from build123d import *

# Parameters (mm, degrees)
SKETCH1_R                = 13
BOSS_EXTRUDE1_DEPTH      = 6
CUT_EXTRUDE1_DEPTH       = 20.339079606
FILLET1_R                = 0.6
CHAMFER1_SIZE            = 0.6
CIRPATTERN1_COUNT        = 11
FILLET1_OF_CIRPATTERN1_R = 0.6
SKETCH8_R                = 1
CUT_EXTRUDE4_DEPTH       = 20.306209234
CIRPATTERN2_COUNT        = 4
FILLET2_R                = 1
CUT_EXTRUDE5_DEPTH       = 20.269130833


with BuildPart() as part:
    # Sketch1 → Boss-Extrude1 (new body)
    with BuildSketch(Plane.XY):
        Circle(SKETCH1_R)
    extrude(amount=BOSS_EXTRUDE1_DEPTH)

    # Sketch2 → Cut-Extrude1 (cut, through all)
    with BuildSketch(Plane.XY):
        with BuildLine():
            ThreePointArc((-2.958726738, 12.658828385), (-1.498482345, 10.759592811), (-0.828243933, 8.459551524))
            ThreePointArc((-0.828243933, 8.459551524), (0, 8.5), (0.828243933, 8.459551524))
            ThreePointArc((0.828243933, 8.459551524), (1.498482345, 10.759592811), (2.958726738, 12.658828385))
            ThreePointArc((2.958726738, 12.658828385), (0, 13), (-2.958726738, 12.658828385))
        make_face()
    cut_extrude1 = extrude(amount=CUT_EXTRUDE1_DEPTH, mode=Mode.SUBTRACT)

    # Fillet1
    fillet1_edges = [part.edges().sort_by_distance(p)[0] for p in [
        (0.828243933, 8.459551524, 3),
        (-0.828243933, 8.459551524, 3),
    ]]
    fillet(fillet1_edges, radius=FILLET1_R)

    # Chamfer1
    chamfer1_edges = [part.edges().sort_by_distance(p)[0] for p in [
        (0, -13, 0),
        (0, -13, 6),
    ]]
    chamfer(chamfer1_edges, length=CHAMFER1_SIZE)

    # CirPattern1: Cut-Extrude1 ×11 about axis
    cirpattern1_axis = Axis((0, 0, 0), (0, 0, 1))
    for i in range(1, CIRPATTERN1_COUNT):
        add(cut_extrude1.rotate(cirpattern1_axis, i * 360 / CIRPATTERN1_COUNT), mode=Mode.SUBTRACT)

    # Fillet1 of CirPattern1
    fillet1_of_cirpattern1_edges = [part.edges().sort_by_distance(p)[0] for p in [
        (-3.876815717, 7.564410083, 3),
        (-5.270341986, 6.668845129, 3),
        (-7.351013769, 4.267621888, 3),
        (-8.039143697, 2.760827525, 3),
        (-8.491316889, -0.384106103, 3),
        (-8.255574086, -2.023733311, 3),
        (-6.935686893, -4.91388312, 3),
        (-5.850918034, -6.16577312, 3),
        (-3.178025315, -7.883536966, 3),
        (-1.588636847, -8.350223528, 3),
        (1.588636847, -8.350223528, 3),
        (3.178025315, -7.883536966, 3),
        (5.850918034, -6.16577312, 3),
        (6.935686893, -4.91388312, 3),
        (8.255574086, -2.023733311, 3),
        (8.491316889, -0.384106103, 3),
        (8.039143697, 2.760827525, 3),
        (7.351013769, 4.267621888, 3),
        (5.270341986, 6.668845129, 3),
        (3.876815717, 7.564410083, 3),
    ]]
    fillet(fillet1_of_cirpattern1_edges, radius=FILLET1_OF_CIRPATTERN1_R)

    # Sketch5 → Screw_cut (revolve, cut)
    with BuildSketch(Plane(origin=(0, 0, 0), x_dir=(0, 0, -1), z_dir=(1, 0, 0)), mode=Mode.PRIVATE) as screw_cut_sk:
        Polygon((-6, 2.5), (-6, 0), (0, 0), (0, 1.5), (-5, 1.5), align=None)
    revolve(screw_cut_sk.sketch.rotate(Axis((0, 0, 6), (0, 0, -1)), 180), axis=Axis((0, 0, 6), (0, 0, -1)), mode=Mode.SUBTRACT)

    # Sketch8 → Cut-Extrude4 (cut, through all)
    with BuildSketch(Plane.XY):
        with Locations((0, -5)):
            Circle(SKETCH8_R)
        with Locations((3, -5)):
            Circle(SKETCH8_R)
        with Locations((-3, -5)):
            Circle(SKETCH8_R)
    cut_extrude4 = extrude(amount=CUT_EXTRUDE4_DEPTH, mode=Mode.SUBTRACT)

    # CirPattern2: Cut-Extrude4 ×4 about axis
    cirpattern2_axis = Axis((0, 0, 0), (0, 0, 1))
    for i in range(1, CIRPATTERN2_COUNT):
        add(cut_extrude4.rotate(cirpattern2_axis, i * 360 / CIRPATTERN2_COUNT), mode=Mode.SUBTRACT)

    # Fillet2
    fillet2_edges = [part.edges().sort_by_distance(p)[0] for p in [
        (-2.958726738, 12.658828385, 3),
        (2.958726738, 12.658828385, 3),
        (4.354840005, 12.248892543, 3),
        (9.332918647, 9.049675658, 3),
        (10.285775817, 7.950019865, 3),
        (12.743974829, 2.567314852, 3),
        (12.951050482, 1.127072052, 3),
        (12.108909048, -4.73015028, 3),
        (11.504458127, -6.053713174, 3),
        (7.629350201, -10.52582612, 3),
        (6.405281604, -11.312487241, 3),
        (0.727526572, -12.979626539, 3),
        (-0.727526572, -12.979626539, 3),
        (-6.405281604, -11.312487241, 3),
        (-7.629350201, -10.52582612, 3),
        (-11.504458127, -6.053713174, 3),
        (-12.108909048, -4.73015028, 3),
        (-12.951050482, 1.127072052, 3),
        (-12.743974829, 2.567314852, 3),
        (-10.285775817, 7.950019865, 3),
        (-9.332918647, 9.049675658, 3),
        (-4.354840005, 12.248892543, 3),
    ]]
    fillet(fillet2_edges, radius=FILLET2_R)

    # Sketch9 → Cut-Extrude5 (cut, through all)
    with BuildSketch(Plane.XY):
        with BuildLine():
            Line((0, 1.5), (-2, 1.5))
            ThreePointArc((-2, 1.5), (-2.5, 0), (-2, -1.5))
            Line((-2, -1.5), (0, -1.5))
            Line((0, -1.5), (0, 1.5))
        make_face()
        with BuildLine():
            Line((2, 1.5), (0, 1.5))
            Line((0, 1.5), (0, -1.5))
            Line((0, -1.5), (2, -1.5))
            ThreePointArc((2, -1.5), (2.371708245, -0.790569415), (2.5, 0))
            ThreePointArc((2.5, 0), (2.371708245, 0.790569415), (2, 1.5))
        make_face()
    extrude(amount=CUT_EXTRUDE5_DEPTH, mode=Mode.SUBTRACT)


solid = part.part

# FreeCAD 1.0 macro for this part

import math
import FreeCAD as App
import Part
import Sketcher
Q = App.Units.Quantity


def edges_at(feature, points):
    """Names of the edges that pass closest to the given points."""
    edges = feature.Shape.Edges
    near = lambda p: min(range(len(edges)), key=lambda i: edges[i].distToShape(Part.Vertex(*p))[0])
    return sorted({f"Edge{near(p) + 1}" for p in points})

doc = App.newDocument("Part")
body = doc.addObject("PartDesign::Body", "Body")

sketch1 = body.newObject("Sketcher::SketchObject", "Sketch")
sketch1.AttachmentSupport = (doc.getObject("XY_Plane"), [""])
sketch1.MapMode = "FlatFace"
sketch1.addGeometry(Part.Circle(App.Vector(0, 0, 0), App.Vector(0, 0, 1), 13), False)
sketch1.addConstraint([
    Sketcher.Constraint("Coincident", 0, 3, -1, 1),
    Sketcher.Constraint("Diameter", 0, Q("26 mm")),
])
pad1 = body.newObject("PartDesign::Pad", "Pad")
pad1.Profile = sketch1
pad1.Length = 6

sketch2 = body.newObject("Sketcher::SketchObject", "Sketch001")
sketch2.AttachmentSupport = (doc.getObject("XY_Plane"), [""])
sketch2.MapMode = "FlatFace"
sketch2.addGeometry([
    Part.ArcOfCircle(Part.Circle(App.Vector(-7.3, 7.8, 0), App.Vector(0, 0, 1), 6.5), math.radians(6), math.radians(48)),
    Part.ArcOfCircle(Part.Circle(App.Vector(0, 0, 0), App.Vector(0, 0, 1), 8.5), math.radians(84.41), math.radians(95.59)),
    Part.ArcOfCircle(Part.Circle(App.Vector(7.3, 7.8, 0), App.Vector(0, 0, 1), 6.5), math.radians(132), math.radians(174)),
    Part.ArcOfCircle(Part.Circle(App.Vector(0, 0, 0), App.Vector(0, 0, 1), 13), math.radians(77), math.radians(103)),
], False)
sketch2.addConstraint([
    Sketcher.Constraint("Coincident", 0, 1, 1, 2),
    Sketcher.Constraint("Coincident", 1, 1, 2, 2),
    Sketcher.Constraint("Coincident", 2, 1, 3, 1),
    Sketcher.Constraint("Coincident", 3, 2, 0, 2),
    Sketcher.Constraint("Coincident", 1, 3, -1, 1),
    Sketcher.Constraint("Coincident", 3, 3, -1, 1),
    Sketcher.Constraint("Equal", 0, 2),
    Sketcher.Constraint("Symmetric", 0, 3, 2, 3, -2),
    Sketcher.Constraint("Radius", 3, Q("13 mm")),
    Sketcher.Constraint("Radius", 1, Q("8.5 mm")),
    Sketcher.Constraint("Radius", 0, Q("6.478885 mm")),
    Sketcher.Constraint("DistanceY", -1, 1, 0, 1, Q("8.459552 mm")),
    Sketcher.Constraint("DistanceY", -1, 1, 2, 1, Q("12.658828 mm")),
])
pocket1 = body.newObject("PartDesign::Pocket", "Pocket")
pocket1.Profile = sketch2
pocket1.Type = "ThroughAll"
pocket1.Reversed = True
doc.recompute()

fillet = body.newObject("PartDesign::Fillet", "Fillet")
fillet.Base = (pocket1, edges_at(pocket1, [(0.828, 8.46, 3), (-0.828, 8.46, 3)]))
fillet.Radius = 0.6
doc.recompute()

chamfer = body.newObject("PartDesign::Chamfer", "Chamfer")
chamfer.Base = (fillet, edges_at(fillet, [(0, -13, 0), (0, -13, 6)]))
chamfer.Size = 0.6
doc.recompute()

polarpattern = body.newObject("PartDesign::PolarPattern", "PolarPattern")
polarpattern.Originals = [pocket1]
polarpattern.Axis = (doc.getObject("Z_Axis"), [""])
polarpattern.Angle = 360
polarpattern.Occurrences = 11
body.Tip = polarpattern
doc.recompute()

fillet2 = body.newObject("PartDesign::Fillet", "Fillet001")
fillet2.Base = (polarpattern, edges_at(polarpattern, [
    (-3.877, 7.564, 3),
    (-5.27, 6.669, 3),
    (-7.351, 4.268, 3),
    (-8.039, 2.761, 3),
    (-8.491, -0.384, 3),
    (-8.256, -2.024, 3),
    (-6.936, -4.914, 3),
    (-5.851, -6.166, 3),
    (-3.178, -7.884, 3),
    (-1.589, -8.35, 3),
    (1.589, -8.35, 3),
    (3.178, -7.884, 3),
    (5.851, -6.166, 3),
    (6.936, -4.914, 3),
    (8.256, -2.024, 3),
    (8.491, -0.384, 3),
    (8.039, 2.761, 3),
    (7.351, 4.268, 3),
    (5.27, 6.669, 3),
    (3.877, 7.564, 3),
]))
fillet2.Radius = 0.6

sketch3 = body.newObject("Sketcher::SketchObject", "Sketch002")
sketch3.AttachmentSupport = (doc.getObject("YZ_Plane"), [""])
sketch3.MapMode = "FlatFace"
sketch3.addGeometry([
    Part.LineSegment(App.Vector(2.5, 6, 0), App.Vector(0, 6, 0)),
    Part.LineSegment(App.Vector(0, 6, 0), App.Vector(0, 0, 0)),
    Part.LineSegment(App.Vector(0, 0, 0), App.Vector(1.5, 0, 0)),
    Part.LineSegment(App.Vector(1.5, 0, 0), App.Vector(1.5, 5, 0)),
    Part.LineSegment(App.Vector(1.5, 5, 0), App.Vector(2.5, 6, 0)),
], False)
sketch3.addConstraint([
    Sketcher.Constraint("Coincident", 0, 2, 1, 1),
    Sketcher.Constraint("Coincident", 1, 2, 2, 1),
    Sketcher.Constraint("Coincident", 2, 2, 3, 1),
    Sketcher.Constraint("Coincident", 3, 2, 4, 1),
    Sketcher.Constraint("Coincident", 4, 2, 0, 1),
    Sketcher.Constraint("Horizontal", 0),
    Sketcher.Constraint("Vertical", 1),
    Sketcher.Constraint("Horizontal", 2),
    Sketcher.Constraint("Vertical", 3),
    Sketcher.Constraint("Coincident", 1, 2, -1, 1),
    Sketcher.Constraint("DistanceY", 1, 2, 1, 1, Q("6 mm")),
    Sketcher.Constraint("DistanceY", 3, 1, 3, 2, Q("5 mm")),
    Sketcher.Constraint("Angle", 4, Q("45 deg")),
    Sketcher.Constraint("DistanceX", 0, 2, 0, 1, Q("2.5 mm")),
])
groove = body.newObject("PartDesign::Groove", "Groove")
groove.Profile = sketch3
groove.ReferenceAxis = (sketch3, ["V_Axis"])
groove.Angle = 360

sketch4 = body.newObject("Sketcher::SketchObject", "Sketch003")
sketch4.AttachmentSupport = (doc.getObject("XY_Plane"), [""])
sketch4.MapMode = "FlatFace"
sketch4.addGeometry([
    Part.Circle(App.Vector(0, -5, 0), App.Vector(0, 0, 1), 1),
    Part.Circle(App.Vector(3, -5, 0), App.Vector(0, 0, 1), 1),
    Part.Circle(App.Vector(-3, -5, 0), App.Vector(0, 0, 1), 1),
], False)
sketch4.addConstraint([
    Sketcher.Constraint("Equal", 0, 1),
    Sketcher.Constraint("Equal", 1, 2),
    Sketcher.Constraint("Symmetric", 1, 3, 2, 3, -2),
    Sketcher.Constraint("PointOnObject", 0, 3, -2),
    Sketcher.Constraint("Horizontal", 0, 3, 1, 3),
    Sketcher.Constraint("Diameter", 0, Q("2 mm")),
    Sketcher.Constraint("DistanceY", 0, 3, -1, 1, Q("5 mm")),
    Sketcher.Constraint("DistanceX", -1, 1, 1, 3, Q("3 mm")),
])
pocket2 = body.newObject("PartDesign::Pocket", "Pocket001")
pocket2.Profile = sketch4
pocket2.Type = "ThroughAll"
pocket2.Reversed = True
doc.recompute()

polarpattern2 = body.newObject("PartDesign::PolarPattern", "PolarPattern001")
polarpattern2.Originals = [pocket2]
polarpattern2.Axis = (doc.getObject("Z_Axis"), [""])
polarpattern2.Angle = 360
polarpattern2.Occurrences = 4
body.Tip = polarpattern2
doc.recompute()

fillet3 = body.newObject("PartDesign::Fillet", "Fillet002")
fillet3.Base = (polarpattern2, edges_at(polarpattern2, [
    (-2.959, 12.659, 3),
    (2.959, 12.659, 3),
    (4.355, 12.249, 3),
    (9.333, 9.05, 3),
    (10.286, 7.95, 3),
    (12.744, 2.567, 3),
    (12.951, 1.127, 3),
    (12.109, -4.73, 3),
    (11.504, -6.054, 3),
    (7.629, -10.526, 3),
    (6.405, -11.312, 3),
    (0.728, -12.98, 3),
    (-0.728, -12.98, 3),
    (-6.405, -11.312, 3),
    (-7.629, -10.526, 3),
    (-11.504, -6.054, 3),
    (-12.109, -4.73, 3),
    (-12.951, 1.127, 3),
    (-12.744, 2.567, 3),
    (-10.286, 7.95, 3),
    (-9.333, 9.05, 3),
    (-4.355, 12.249, 3),
]))
fillet3.Radius = 1

sketch5 = body.newObject("Sketcher::SketchObject", "Sketch004")
sketch5.AttachmentSupport = (doc.getObject("XY_Plane"), [""])
sketch5.MapMode = "FlatFace"
sketch5.addGeometry([
    Part.ArcOfCircle(Part.Circle(App.Vector(0, 0, 0), App.Vector(0, 0, 1), 2.5), math.radians(143), math.radians(217)),
    Part.LineSegment(App.Vector(-2, -1.5, 0), App.Vector(2, -1.5, 0)),
    Part.ArcOfCircle(Part.Circle(App.Vector(0, 0, 0), App.Vector(0, 0, 1), 2.5), math.radians(-37), math.radians(0)),
    Part.ArcOfCircle(Part.Circle(App.Vector(0, 0, 0), App.Vector(0, 0, 1), 2.5), math.radians(0), math.radians(37)),
    Part.LineSegment(App.Vector(2, 1.5, 0), App.Vector(-2, 1.5, 0)),
], False)
sketch5.addConstraint([
    Sketcher.Constraint("Coincident", 0, 2, 1, 1),
    Sketcher.Constraint("Coincident", 1, 2, 2, 1),
    Sketcher.Constraint("Tangent", 2, 2, 3, 1),
    Sketcher.Constraint("Coincident", 3, 2, 4, 1),
    Sketcher.Constraint("Coincident", 4, 2, 0, 1),
    Sketcher.Constraint("Horizontal", 1),
    Sketcher.Constraint("Horizontal", 4),
    Sketcher.Constraint("Coincident", 0, 3, -1, 1),
    Sketcher.Constraint("Coincident", 2, 3, -1, 1),
    Sketcher.Constraint("Equal", 0, 2),
    Sketcher.Constraint("Equal", 2, 3),
    Sketcher.Constraint("PointOnObject", 2, 2, -1),
    Sketcher.Constraint("Vertical", 1, 2, 3, 2),
    Sketcher.Constraint("Radius", 0, Q("2.5 mm")),
    Sketcher.Constraint("DistanceX", 1, 1, 1, 2, Q("4 mm")),
])
pocket3 = body.newObject("PartDesign::Pocket", "Pocket002")
pocket3.Profile = sketch5
pocket3.Type = "ThroughAll"
pocket3.Reversed = True

doc.recompute()
